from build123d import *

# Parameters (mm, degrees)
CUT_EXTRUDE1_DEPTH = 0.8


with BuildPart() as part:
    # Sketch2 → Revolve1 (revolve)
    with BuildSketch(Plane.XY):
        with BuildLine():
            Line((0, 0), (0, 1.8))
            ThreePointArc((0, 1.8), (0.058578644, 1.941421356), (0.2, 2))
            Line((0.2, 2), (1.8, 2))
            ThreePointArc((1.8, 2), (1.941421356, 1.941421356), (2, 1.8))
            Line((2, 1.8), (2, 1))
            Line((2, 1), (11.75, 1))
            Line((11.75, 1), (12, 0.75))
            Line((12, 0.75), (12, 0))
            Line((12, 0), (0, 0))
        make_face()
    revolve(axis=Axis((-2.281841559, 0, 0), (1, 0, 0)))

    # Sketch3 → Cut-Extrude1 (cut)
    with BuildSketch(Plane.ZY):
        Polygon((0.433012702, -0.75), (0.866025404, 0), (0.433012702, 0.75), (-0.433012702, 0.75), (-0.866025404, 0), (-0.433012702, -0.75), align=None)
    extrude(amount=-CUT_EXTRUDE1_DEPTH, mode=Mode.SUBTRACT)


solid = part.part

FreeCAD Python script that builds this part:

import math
import FreeCAD as App
import Part
import Sketcher
Q = App.Units.Quantity

doc = App.newDocument("Part")
body = doc.addObject("PartDesign::Body", "Body")

# Sketch on XY plane
sketch1 = body.newObject("Sketcher::SketchObject", "Sketch")
sketch1.AttachmentSupport = (doc.getObject("XY_Plane"), [""])
sketch1.MapMode = "FlatFace"
sketch1.addGeometry([
    Part.LineSegment(App.Vector(0, 1.8, 0), App.Vector(0, 0, 0)),  # 0
    Part.LineSegment(App.Vector(0, 0, 0), App.Vector(12, 0, 0)),  # 1
    Part.LineSegment(App.Vector(12, 0, 0), App.Vector(12, 0.75, 0)),  # 2
    Part.LineSegment(App.Vector(12, 0.75, 0), App.Vector(11.75, 1, 0)),  # 3
    Part.LineSegment(App.Vector(11.75, 1, 0), App.Vector(2, 1, 0)),  # 4
    Part.LineSegment(App.Vector(2, 1, 0), App.Vector(2, 1.8, 0)),  # 5
    Part.ArcOfCircle(Part.Circle(App.Vector(1.8, 1.8, 0), App.Vector(0, 0, 1), 0.2), math.radians(0), math.radians(90)),  # 6
    Part.LineSegment(App.Vector(1.8, 2, 0), App.Vector(0.2, 2, 0)),  # 7
    Part.ArcOfCircle(Part.Circle(App.Vector(0.2, 1.8, 0), App.Vector(0, 0, 1), 0.2), math.radians(90), math.radians(180)),  # 8
], False)
sketch1.addConstraint([
    Sketcher.Constraint("Coincident", 0, 2, 1, 1),
    Sketcher.Constraint("Coincident", 1, 2, 2, 1),
    Sketcher.Constraint("Coincident", 2, 2, 3, 1),
    Sketcher.Constraint("Coincident", 3, 2, 4, 1),
    Sketcher.Constraint("Coincident", 4, 2, 5, 1),
    Sketcher.Constraint("Tangent", 5, 2, 6, 1),
    Sketcher.Constraint("Tangent", 6, 2, 7, 1),
    Sketcher.Constraint("Tangent", 7, 2, 8, 1),
    Sketcher.Constraint("Tangent", 8, 2, 0, 1),
    Sketcher.Constraint("Vertical", 0),
    Sketcher.Constraint("Horizontal", 1),
    Sketcher.Constraint("Vertical", 2),
    Sketcher.Constraint("Horizontal", 4),
    Sketcher.Constraint("Vertical", 5),
    Sketcher.Constraint("Horizontal", 7),
    Sketcher.Constraint("Coincident", 0, 2, -1, 1),
    Sketcher.Constraint("Equal", 6, 8),
    Sketcher.Constraint("Radius", 6, 0.2),
    Sketcher.Constraint("DistanceX", 1, 1, 1, 2, 12.0),
    Sketcher.Constraint("Angle", 3, Q("135 deg")),
    Sketcher.Constraint("DistanceX", 7, 2, 7, 1, 1.6),
    Sketcher.Constraint("DistanceY", 0, 2, 0, 1, 1.8),
    Sketcher.Constraint("DistanceY", 5, 1, 5, 2, 0.8),
    Sketcher.Constraint("DistanceX", 4, 2, 4, 1, 9.75),
])
revolution = body.newObject("PartDesign::Revolution", "Revolution")
revolution.Profile = sketch1
revolution.ReferenceAxis = (sketch1, ["H_Axis"])
revolution.Angle = 360

# Sketch on YZ plane
sketch2 = body.newObject("Sketcher::SketchObject", "Sketch001")
sketch2.AttachmentSupport = (doc.getObject("YZ_Plane"), [""])
sketch2.MapMode = "FlatFace"
sketch2.addGeometry([
    Part.LineSegment(App.Vector(-0.8, 0.4, 0), App.Vector(0, 0.9, 0)),  # 0
    Part.LineSegment(App.Vector(0, 0.9, 0), App.Vector(0.8, 0.4, 0)),  # 1
    Part.LineSegment(App.Vector(0.8, 0.4, 0), App.Vector(0.8, -0.4, 0)),  # 2
    Part.LineSegment(App.Vector(0.8, -0.4, 0), App.Vector(0, -0.9, 0)),  # 3
    Part.LineSegment(App.Vector(0, -0.9, 0), App.Vector(-0.8, -0.4, 0)),  # 4
    Part.LineSegment(App.Vector(-0.8, -0.4, 0), App.Vector(-0.8, 0.4, 0)),  # 5
], False)
sketch2.addConstraint([
    Sketcher.Constraint("Coincident", 0, 2, 1, 1),
    Sketcher.Constraint("Coincident", 1, 2, 2, 1),
    Sketcher.Constraint("Coincident", 2, 2, 3, 1),
    Sketcher.Constraint("Coincident", 3, 2, 4, 1),
    Sketcher.Constraint("Coincident", 4, 2, 5, 1),
    Sketcher.Constraint("Coincident", 5, 2, 0, 1),
    Sketcher.Constraint("Vertical", 2),
    Sketcher.Constraint("Vertical", 5),
    Sketcher.Constraint("Symmetric", 0, 2, 3, 2, -1, 1),
    Sketcher.Constraint("Symmetric", 1, 2, 4, 2, -1, 1),
    Sketcher.Constraint("PointOnObject", 0, 2, -2),
    Sketcher.Constraint("Parallel", 0, 3),
    Sketcher.Constraint("Horizontal", 2, 2, 4, 2),
    Sketcher.Constraint("Angle", 0, Q("30 deg")),
    Sketcher.Constraint("DistanceX", 4, 2, 2, 2, 1.5),
    Sketcher.Constraint("DistanceY", 2, 2, 2, 1, 0.866025),
])
pocket1 = body.newObject("PartDesign::Pocket", "Pocket")
pocket1.Profile = sketch2
pocket1.Length = 0.8
pocket1.Reversed = True

doc.recompute()
